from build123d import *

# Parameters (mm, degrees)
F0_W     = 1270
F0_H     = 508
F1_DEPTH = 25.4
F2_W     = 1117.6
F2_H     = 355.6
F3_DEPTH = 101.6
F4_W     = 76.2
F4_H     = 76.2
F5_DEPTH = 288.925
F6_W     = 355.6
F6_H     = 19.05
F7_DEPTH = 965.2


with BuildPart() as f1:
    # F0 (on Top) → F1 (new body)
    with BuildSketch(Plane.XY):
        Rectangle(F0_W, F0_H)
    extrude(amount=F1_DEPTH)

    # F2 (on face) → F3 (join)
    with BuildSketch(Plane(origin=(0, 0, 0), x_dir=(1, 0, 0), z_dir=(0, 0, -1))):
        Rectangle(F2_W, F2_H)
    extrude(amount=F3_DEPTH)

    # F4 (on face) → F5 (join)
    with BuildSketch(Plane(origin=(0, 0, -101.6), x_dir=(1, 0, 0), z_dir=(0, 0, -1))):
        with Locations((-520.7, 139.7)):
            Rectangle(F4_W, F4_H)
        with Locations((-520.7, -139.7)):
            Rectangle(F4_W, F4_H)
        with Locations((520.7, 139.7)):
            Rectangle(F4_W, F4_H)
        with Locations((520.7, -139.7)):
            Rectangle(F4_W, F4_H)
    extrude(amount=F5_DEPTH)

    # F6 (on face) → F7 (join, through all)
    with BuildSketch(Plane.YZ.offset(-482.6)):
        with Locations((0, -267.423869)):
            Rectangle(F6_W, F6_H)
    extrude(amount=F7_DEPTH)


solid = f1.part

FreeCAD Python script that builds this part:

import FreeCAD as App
import Part
import Sketcher
from FreeCAD import Vector
Q = App.Units.Quantity

doc = App.newDocument("Part")
body = doc.addObject("PartDesign::Body", "Body")

# Sketch on XY plane
sketch1 = body.newObject("Sketcher::SketchObject", "Sketch")
sketch1.AttachmentSupport = (doc.getObject("XY_Plane"), [""])
sketch1.MapMode = "FlatFace"
sketch1.addGeometry(Part.LineSegment(Vector(-635, 254, 0), Vector(-635, -254, 0)), False)
sketch1.addGeometry(Part.LineSegment(Vector(-635, -254, 0), Vector(635, -254, 0)), False)
sketch1.addGeometry(Part.LineSegment(Vector(635, -254, 0), Vector(635, 254, 0)), False)
sketch1.addGeometry(Part.LineSegment(Vector(635, 254, 0), Vector(-635, 254, 0)), False)
sketch1.addConstraint(Sketcher.Constraint("Coincident", 0, 2, 1, 1))
sketch1.addConstraint(Sketcher.Constraint("Coincident", 1, 2, 2, 1))
sketch1.addConstraint(Sketcher.Constraint("Coincident", 2, 2, 3, 1))
sketch1.addConstraint(Sketcher.Constraint("Coincident", 3, 2, 0, 1))
sketch1.addConstraint(Sketcher.Constraint("Vertical", 0))
sketch1.addConstraint(Sketcher.Constraint("Horizontal", 1))
sketch1.addConstraint(Sketcher.Constraint("Vertical", 2))
sketch1.addConstraint(Sketcher.Constraint("Horizontal", 3))
sketch1.addConstraint(Sketcher.Constraint("Symmetric", 0, 2, 2, 2, -1, 1))
sketch1.addConstraint(Sketcher.Constraint("DistanceX", 1, 1, 1, 2, Q("50 in")))
sketch1.addConstraint(Sketcher.Constraint("DistanceY", 0, 2, 0, 1, Q("20 in")))
pad1 = body.newObject("PartDesign::Pad", "Pad")
pad1.Profile = sketch1
pad1.Length = Q("1 in")

# Sketch on XY plane
sketch2 = body.newObject("Sketcher::SketchObject", "Sketch001")
sketch2.AttachmentSupport = (doc.getObject("XY_Plane"), [""])
sketch2.MapMode = "FlatFace"
sketch2.addGeometry(Part.LineSegment(Vector(-559, -178, 0), Vector(-559, 178, 0)), False)
sketch2.addGeometry(Part.LineSegment(Vector(-559, 178, 0), Vector(559, 178, 0)), False)
sketch2.addGeometry(Part.LineSegment(Vector(559, 178, 0), Vector(559, -178, 0)), False)
sketch2.addGeometry(Part.LineSegment(Vector(559, -178, 0), Vector(-559, -178, 0)), False)
sketch2.addConstraint(Sketcher.Constraint("Coincident", 0, 2, 1, 1))
sketch2.addConstraint(Sketcher.Constraint("Coincident", 1, 2, 2, 1))
sketch2.addConstraint(Sketcher.Constraint("Coincident", 2, 2, 3, 1))
sketch2.addConstraint(Sketcher.Constraint("Coincident", 3, 2, 0, 1))
sketch2.addConstraint(Sketcher.Constraint("Vertical", 0))
sketch2.addConstraint(Sketcher.Constraint("Horizontal", 1))
sketch2.addConstraint(Sketcher.Constraint("Vertical", 2))
sketch2.addConstraint(Sketcher.Constraint("Horizontal", 3))
sketch2.addConstraint(Sketcher.Constraint("Symmetric", 0, 2, 2, 2, -1, 1))
sketch2.addConstraint(Sketcher.Constraint("DistanceX", 1, 1, 1, 2, Q("44 in")))
sketch2.addConstraint(Sketcher.Constraint("DistanceY", 0, 1, 0, 2, Q("14 in")))
pad2 = body.newObject("PartDesign::Pad", "Pad001")
pad2.Profile = sketch2
pad2.Length = Q("4 in")
pad2.Reversed = True

# Sketch on XY plane
sketch3 = body.newObject("Sketcher::SketchObject", "Sketch002")
sketch3.AttachmentSupport = (doc.getObject("XY_Plane"), [""])
sketch3.MapMode = "FlatFace"
sketch3.AttachmentOffset = App.Placement(Vector(0, 0, -4 * 25.4), App.Rotation())
sketch3.addGeometry(Part.LineSegment(Vector(-559, -178, 0), Vector(-559, -102, 0)), False)
sketch3.addGeometry(Part.LineSegment(Vector(-559, -102, 0), Vector(-483, -102, 0)), False)
sketch3.addGeometry(Part.LineSegment(Vector(-483, -102, 0), Vector(-483, -178, 0)), False)
sketch3.addGeometry(Part.LineSegment(Vector(-483, -178, 0), Vector(-559, -178, 0)), False)
sketch3.addGeometry(Part.LineSegment(Vector(-559, 102, 0), Vector(-559, 178, 0)), False)
sketch3.addGeometry(Part.LineSegment(Vector(-559, 178, 0), Vector(-483, 178, 0)), False)
sketch3.addGeometry(Part.LineSegment(Vector(-483, 178, 0), Vector(-483, 102, 0)), False)
sketch3.addGeometry(Part.LineSegment(Vector(-483, 102, 0), Vector(-559, 102, 0)), False)
sketch3.addGeometry(Part.LineSegment(Vector(483, -178, 0), Vector(483, -102, 0)), False)
sketch3.addGeometry(Part.LineSegment(Vector(483, -102, 0), Vector(559, -102, 0)), False)
sketch3.addGeometry(Part.LineSegment(Vector(559, -102, 0), Vector(559, -178, 0)), False)
sketch3.addGeometry(Part.LineSegment(Vector(559, -178, 0), Vector(483, -178, 0)), False)
sketch3.addGeometry(Part.LineSegment(Vector(483, 102, 0), Vector(483, 178, 0)), False)
sketch3.addGeometry(Part.LineSegment(Vector(483, 178, 0), Vector(559, 178, 0)), False)
sketch3.addGeometry(Part.LineSegment(Vector(559, 178, 0), Vector(559, 102, 0)), False)
sketch3.addGeometry(Part.LineSegment(Vector(559, 102, 0), Vector(483, 102, 0)), False)
sketch3.addConstraint(Sketcher.Constraint("Coincident", 0, 2, 1, 1))
sketch3.addConstraint(Sketcher.Constraint("Coincident", 1, 2, 2, 1))
sketch3.addConstraint(Sketcher.Constraint("Coincident", 2, 2, 3, 1))
sketch3.addConstraint(Sketcher.Constraint("Coincident", 3, 2, 0, 1))
sketch3.addConstraint(Sketcher.Constraint("Coincident", 4, 2, 5, 1))
sketch3.addConstraint(Sketcher.Constraint("Coincident", 5, 2, 6, 1))
sketch3.addConstraint(Sketcher.Constraint("Coincident", 6, 2, 7, 1))
sketch3.addConstraint(Sketcher.Constraint("Coincident", 7, 2, 4, 1))
sketch3.addConstraint(Sketcher.Constraint("Coincident", 8, 2, 9, 1))
sketch3.addConstraint(Sketcher.Constraint("Coincident", 9, 2, 10, 1))
sketch3.addConstraint(Sketcher.Constraint("Coincident", 10, 2, 11, 1))
sketch3.addConstraint(Sketcher.Constraint("Coincident", 11, 2, 8, 1))
sketch3.addConstraint(Sketcher.Constraint("Coincident", 12, 2, 13, 1))
sketch3.addConstraint(Sketcher.Constraint("Coincident", 13, 2, 14, 1))
sketch3.addConstraint(Sketcher.Constraint("Coincident", 14, 2, 15, 1))
sketch3.addConstraint(Sketcher.Constraint("Coincident", 15, 2, 12, 1))
sketch3.addConstraint(Sketcher.Constraint("Vertical", 0))
sketch3.addConstraint(Sketcher.Constraint("Horizontal", 1))
sketch3.addConstraint(Sketcher.Constraint("Vertical", 2))
sketch3.addConstraint(Sketcher.Constraint("Horizontal", 3))
sketch3.addConstraint(Sketcher.Constraint("Vertical", 4))
sketch3.addConstraint(Sketcher.Constraint("Horizontal", 5))
sketch3.addConstraint(Sketcher.Constraint("Vertical", 6))
sketch3.addConstraint(Sketcher.Constraint("Horizontal", 7))
sketch3.addConstraint(Sketcher.Constraint("Vertical", 8))
sketch3.addConstraint(Sketcher.Constraint("Horizontal", 9))
sketch3.addConstraint(Sketcher.Constraint("Vertical", 10))
sketch3.addConstraint(Sketcher.Constraint("Horizontal", 11))
sketch3.addConstraint(Sketcher.Constraint("Vertical", 12))
sketch3.addConstraint(Sketcher.Constraint("Horizontal", 13))
sketch3.addConstraint(Sketcher.Constraint("Vertical", 14))
sketch3.addConstraint(Sketcher.Constraint("Horizontal", 15))
sketch3.addConstraint(Sketcher.Constraint("Symmetric", 6, 2, 8, 2, -1, 1))
sketch3.addConstraint(Sketcher.Constraint("Symmetric", 4, 2, 10, 2, -1, 1))
sketch3.addConstraint(Sketcher.Constraint("Symmetric", 2, 2, 12, 2, -1, 1))
sketch3.addConstraint(Sketcher.Constraint("Symmetric", 0, 2, 14, 2, -1, 1))
sketch3.addConstraint(Sketcher.Constraint("Symmetric", 1, 2, 8, 2, -2))
sketch3.addConstraint(Sketcher.Constraint("Symmetric", 3, 2, 10, 2, -2))
sketch3.addConstraint(Sketcher.Constraint("Equal", 15, 0))
sketch3.addConstraint(Sketcher.Constraint("DistanceX", 1, 1, 1, 2, Q("3 in")))
sketch3.addConstraint(Sketcher.Constraint("DistanceX", 0, 2, -1, 1, Q("22 in")))
sketch3.addConstraint(Sketcher.Constraint("DistanceY", 0, 2, -1, 1, Q("4 in")))
pad3 = body.newObject("PartDesign::Pad", "Pad002")
pad3.Profile = sketch3
pad3.Length = Q("11.375 in")
pad3.Reversed = True

# Sketch on YZ plane
sketch4 = body.newObject("Sketcher::SketchObject", "Sketch003")
sketch4.AttachmentSupport = (doc.getObject("YZ_Plane"), [""])
sketch4.MapMode = "FlatFace"
sketch4.AttachmentOffset = App.Placement(Vector(0, 0, -19 * 25.4), App.Rotation())
sketch4.addGeometry(Part.LineSegment(Vector(-178, -258, 0), Vector(-178, -277, 0)), False)
sketch4.addGeometry(Part.LineSegment(Vector(-178, -277, 0), Vector(178, -277, 0)), False)
sketch4.addGeometry(Part.LineSegment(Vector(178, -277, 0), Vector(178, -258, 0)), False)
sketch4.addGeometry(Part.LineSegment(Vector(178, -258, 0), Vector(-178, -258, 0)), False)
sketch4.addConstraint(Sketcher.Constraint("Coincident", 0, 2, 1, 1))
sketch4.addConstraint(Sketcher.Constraint("Coincident", 1, 2, 2, 1))
sketch4.addConstraint(Sketcher.Constraint("Coincident", 2, 2, 3, 1))
sketch4.addConstraint(Sketcher.Constraint("Coincident", 3, 2, 0, 1))
sketch4.addConstraint(Sketcher.Constraint("Vertical", 0))
sketch4.addConstraint(Sketcher.Constraint("Horizontal", 1))
sketch4.addConstraint(Sketcher.Constraint("Vertical", 2))
sketch4.addConstraint(Sketcher.Constraint("Horizontal", 3))
sketch4.addConstraint(Sketcher.Constraint("DistanceX", 1, 1, 1, 2, Q("14 in")))
sketch4.addConstraint(Sketcher.Constraint("DistanceX", 0, 2, -1, 1, Q("7 in")))
sketch4.addConstraint(Sketcher.Constraint("DistanceY", 0, 2, 0, 1, Q("0.75 in")))
sketch4.addConstraint(Sketcher.Constraint("DistanceY", 0, 2, -1, 1, 276.948869))
pad4 = body.newObject("PartDesign::Pad", "Pad003")
pad4.Profile = sketch4
pad4.Length = Q("38 in")

doc.recompute()
